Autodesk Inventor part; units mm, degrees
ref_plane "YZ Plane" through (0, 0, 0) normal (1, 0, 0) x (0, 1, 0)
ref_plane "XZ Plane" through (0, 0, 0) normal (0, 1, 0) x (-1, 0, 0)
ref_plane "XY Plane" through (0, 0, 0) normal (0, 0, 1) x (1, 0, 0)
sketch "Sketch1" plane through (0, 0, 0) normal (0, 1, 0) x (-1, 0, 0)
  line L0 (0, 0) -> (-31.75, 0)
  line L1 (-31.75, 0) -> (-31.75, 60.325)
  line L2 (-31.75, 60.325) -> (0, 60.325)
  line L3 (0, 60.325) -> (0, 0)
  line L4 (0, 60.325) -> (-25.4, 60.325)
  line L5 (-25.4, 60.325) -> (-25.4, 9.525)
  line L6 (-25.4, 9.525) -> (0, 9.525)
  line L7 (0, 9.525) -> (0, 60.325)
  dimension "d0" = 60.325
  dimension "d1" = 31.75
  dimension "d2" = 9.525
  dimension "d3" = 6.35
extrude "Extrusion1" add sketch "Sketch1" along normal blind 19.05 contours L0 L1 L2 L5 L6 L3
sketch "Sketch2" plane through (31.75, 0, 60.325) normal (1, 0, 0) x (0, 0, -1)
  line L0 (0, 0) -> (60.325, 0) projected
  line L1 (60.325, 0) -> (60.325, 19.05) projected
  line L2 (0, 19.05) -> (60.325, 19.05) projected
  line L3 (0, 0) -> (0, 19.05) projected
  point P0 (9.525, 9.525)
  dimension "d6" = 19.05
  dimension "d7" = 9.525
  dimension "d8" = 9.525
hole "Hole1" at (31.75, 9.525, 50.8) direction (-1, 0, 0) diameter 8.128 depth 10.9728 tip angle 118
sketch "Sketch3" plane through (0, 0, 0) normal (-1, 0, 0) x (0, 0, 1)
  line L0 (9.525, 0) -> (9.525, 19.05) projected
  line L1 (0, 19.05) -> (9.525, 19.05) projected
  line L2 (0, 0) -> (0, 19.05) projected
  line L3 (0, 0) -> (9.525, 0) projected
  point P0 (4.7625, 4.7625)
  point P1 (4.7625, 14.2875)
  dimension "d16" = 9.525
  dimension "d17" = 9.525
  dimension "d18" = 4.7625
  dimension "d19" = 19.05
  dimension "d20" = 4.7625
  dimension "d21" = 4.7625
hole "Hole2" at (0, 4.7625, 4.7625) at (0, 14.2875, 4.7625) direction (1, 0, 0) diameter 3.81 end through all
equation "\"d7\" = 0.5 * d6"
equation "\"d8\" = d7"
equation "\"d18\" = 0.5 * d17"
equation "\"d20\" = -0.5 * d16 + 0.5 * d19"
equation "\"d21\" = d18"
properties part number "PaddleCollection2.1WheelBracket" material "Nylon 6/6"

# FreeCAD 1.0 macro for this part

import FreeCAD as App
import Part
import Sketcher
from FreeCAD import Vector
Q = App.Units.Quantity


def add_polygon(sketch, points):
    """Adds a closed chain of lines whose ends are joined by coincident constraints."""
    first, n = sketch.GeometryCount, len(points)
    for a, b in zip(points, points[1:] + points[:1]):
        sketch.addGeometry(Part.LineSegment(App.Vector(*a, 0), App.Vector(*b, 0)), False)
    for i in range(n):
        sketch.addConstraint(Sketcher.Constraint("Coincident", first + i, 2, first + (i + 1) % n, 1))

doc = App.newDocument("Part")
body = doc.addObject("PartDesign::Body", "Body")

sketch1 = body.newObject("Sketcher::SketchObject", "Sketch")
sketch1.AttachmentSupport = (doc.getObject("XZ_Plane"), [""])
sketch1.MapMode = "FlatFace"
add_polygon(sketch1, [(32, 0), (0, 0), (0, 10), (25, 10), (25, 60), (32, 60)])
sketch1.addConstraint([
    Sketcher.Constraint("Horizontal", 0),
    Sketcher.Constraint("Vertical", 1),
    Sketcher.Constraint("Horizontal", 2),
    Sketcher.Constraint("Vertical", 3),
    Sketcher.Constraint("Horizontal", 4),
    Sketcher.Constraint("Vertical", 5),
    Sketcher.Constraint("Coincident", 0, 2, -1, 1),
    Sketcher.Constraint("DistanceX", 0, 2, 0, 1, Q("1.25 in")),
    Sketcher.Constraint("DistanceX", 4, 1, 4, 2, Q("0.25 in")),
    Sketcher.Constraint("DistanceY", 1, 1, 1, 2, Q("0.375 in")),
    Sketcher.Constraint("DistanceY", 3, 1, 3, 2, Q("2 in")),
])
pad1 = body.newObject("PartDesign::Pad", "Pad")
pad1.Profile = sketch1
pad1.Length = Q("0.75 in")
pad1.Reversed = True

sketch2 = body.newObject("Sketcher::SketchObject", "Sketch001")
sketch2.AttachmentSupport = (doc.getObject("YZ_Plane"), [""])
sketch2.MapMode = "FlatFace"
sketch2.AttachmentOffset = App.Placement(Vector(0, 0, 1.25 * 25.4), App.Rotation())
sketch2.addGeometry(Part.Circle(Vector(9.5, 50.8, 0), Vector(0, 0, 1), 4.1), False)
sketch2.addConstraint([
    Sketcher.Constraint("Diameter", 0, Q("0.32 in")),
    Sketcher.Constraint("DistanceY", -1, 1, 0, 3, Q("2 in")),
    Sketcher.Constraint("DistanceX", -1, 1, 0, 3, Q("0.375 in")),
])
doc.recompute()
hole = body.newObject("PartDesign::Hole", "Hole")
hole.Profile = sketch2
hole.ThreadType = "None"
hole.Diameter = Q("0.32 in")
hole.DepthType = "Dimension"
hole.Depth = Q("0.432 in")
hole.DrillPoint = "Angled"
hole.DrillPointAngle = 118

sketch3 = body.newObject("Sketcher::SketchObject", "Sketch002")
sketch3.AttachmentSupport = (doc.getObject("YZ_Plane"), [""])
sketch3.MapMode = "FlatFace"
sketch3.addGeometry([
    Part.Circle(Vector(4.8, 4.8, 0), Vector(0, 0, 1), 1.9),
    Part.Circle(Vector(14.3, 4.8, 0), Vector(0, 0, 1), 1.9),
], False)
sketch3.addConstraint([
    Sketcher.Constraint("Equal", 0, 1),
    Sketcher.Constraint("Horizontal", 0, 3, 1, 3),
    Sketcher.Constraint("Diameter", 0, Q("0.15 in")),
    Sketcher.Constraint("DistanceX", -1, 1, 0, 3, Q("0.1875 in")),
    Sketcher.Constraint("DistanceY", -1, 1, 0, 3, Q("0.1875 in")),
    Sketcher.Constraint("DistanceX", -1, 1, 1, 3, Q("0.5625 in")),
])
doc.recompute()
hole2 = body.newObject("PartDesign::Hole", "Hole001")
hole2.Profile = sketch3
hole2.ThreadType = "None"
hole2.Diameter = Q("0.15 in")
hole2.DepthType = "ThroughAll"
hole2.Reversed = True

doc.recompute()
